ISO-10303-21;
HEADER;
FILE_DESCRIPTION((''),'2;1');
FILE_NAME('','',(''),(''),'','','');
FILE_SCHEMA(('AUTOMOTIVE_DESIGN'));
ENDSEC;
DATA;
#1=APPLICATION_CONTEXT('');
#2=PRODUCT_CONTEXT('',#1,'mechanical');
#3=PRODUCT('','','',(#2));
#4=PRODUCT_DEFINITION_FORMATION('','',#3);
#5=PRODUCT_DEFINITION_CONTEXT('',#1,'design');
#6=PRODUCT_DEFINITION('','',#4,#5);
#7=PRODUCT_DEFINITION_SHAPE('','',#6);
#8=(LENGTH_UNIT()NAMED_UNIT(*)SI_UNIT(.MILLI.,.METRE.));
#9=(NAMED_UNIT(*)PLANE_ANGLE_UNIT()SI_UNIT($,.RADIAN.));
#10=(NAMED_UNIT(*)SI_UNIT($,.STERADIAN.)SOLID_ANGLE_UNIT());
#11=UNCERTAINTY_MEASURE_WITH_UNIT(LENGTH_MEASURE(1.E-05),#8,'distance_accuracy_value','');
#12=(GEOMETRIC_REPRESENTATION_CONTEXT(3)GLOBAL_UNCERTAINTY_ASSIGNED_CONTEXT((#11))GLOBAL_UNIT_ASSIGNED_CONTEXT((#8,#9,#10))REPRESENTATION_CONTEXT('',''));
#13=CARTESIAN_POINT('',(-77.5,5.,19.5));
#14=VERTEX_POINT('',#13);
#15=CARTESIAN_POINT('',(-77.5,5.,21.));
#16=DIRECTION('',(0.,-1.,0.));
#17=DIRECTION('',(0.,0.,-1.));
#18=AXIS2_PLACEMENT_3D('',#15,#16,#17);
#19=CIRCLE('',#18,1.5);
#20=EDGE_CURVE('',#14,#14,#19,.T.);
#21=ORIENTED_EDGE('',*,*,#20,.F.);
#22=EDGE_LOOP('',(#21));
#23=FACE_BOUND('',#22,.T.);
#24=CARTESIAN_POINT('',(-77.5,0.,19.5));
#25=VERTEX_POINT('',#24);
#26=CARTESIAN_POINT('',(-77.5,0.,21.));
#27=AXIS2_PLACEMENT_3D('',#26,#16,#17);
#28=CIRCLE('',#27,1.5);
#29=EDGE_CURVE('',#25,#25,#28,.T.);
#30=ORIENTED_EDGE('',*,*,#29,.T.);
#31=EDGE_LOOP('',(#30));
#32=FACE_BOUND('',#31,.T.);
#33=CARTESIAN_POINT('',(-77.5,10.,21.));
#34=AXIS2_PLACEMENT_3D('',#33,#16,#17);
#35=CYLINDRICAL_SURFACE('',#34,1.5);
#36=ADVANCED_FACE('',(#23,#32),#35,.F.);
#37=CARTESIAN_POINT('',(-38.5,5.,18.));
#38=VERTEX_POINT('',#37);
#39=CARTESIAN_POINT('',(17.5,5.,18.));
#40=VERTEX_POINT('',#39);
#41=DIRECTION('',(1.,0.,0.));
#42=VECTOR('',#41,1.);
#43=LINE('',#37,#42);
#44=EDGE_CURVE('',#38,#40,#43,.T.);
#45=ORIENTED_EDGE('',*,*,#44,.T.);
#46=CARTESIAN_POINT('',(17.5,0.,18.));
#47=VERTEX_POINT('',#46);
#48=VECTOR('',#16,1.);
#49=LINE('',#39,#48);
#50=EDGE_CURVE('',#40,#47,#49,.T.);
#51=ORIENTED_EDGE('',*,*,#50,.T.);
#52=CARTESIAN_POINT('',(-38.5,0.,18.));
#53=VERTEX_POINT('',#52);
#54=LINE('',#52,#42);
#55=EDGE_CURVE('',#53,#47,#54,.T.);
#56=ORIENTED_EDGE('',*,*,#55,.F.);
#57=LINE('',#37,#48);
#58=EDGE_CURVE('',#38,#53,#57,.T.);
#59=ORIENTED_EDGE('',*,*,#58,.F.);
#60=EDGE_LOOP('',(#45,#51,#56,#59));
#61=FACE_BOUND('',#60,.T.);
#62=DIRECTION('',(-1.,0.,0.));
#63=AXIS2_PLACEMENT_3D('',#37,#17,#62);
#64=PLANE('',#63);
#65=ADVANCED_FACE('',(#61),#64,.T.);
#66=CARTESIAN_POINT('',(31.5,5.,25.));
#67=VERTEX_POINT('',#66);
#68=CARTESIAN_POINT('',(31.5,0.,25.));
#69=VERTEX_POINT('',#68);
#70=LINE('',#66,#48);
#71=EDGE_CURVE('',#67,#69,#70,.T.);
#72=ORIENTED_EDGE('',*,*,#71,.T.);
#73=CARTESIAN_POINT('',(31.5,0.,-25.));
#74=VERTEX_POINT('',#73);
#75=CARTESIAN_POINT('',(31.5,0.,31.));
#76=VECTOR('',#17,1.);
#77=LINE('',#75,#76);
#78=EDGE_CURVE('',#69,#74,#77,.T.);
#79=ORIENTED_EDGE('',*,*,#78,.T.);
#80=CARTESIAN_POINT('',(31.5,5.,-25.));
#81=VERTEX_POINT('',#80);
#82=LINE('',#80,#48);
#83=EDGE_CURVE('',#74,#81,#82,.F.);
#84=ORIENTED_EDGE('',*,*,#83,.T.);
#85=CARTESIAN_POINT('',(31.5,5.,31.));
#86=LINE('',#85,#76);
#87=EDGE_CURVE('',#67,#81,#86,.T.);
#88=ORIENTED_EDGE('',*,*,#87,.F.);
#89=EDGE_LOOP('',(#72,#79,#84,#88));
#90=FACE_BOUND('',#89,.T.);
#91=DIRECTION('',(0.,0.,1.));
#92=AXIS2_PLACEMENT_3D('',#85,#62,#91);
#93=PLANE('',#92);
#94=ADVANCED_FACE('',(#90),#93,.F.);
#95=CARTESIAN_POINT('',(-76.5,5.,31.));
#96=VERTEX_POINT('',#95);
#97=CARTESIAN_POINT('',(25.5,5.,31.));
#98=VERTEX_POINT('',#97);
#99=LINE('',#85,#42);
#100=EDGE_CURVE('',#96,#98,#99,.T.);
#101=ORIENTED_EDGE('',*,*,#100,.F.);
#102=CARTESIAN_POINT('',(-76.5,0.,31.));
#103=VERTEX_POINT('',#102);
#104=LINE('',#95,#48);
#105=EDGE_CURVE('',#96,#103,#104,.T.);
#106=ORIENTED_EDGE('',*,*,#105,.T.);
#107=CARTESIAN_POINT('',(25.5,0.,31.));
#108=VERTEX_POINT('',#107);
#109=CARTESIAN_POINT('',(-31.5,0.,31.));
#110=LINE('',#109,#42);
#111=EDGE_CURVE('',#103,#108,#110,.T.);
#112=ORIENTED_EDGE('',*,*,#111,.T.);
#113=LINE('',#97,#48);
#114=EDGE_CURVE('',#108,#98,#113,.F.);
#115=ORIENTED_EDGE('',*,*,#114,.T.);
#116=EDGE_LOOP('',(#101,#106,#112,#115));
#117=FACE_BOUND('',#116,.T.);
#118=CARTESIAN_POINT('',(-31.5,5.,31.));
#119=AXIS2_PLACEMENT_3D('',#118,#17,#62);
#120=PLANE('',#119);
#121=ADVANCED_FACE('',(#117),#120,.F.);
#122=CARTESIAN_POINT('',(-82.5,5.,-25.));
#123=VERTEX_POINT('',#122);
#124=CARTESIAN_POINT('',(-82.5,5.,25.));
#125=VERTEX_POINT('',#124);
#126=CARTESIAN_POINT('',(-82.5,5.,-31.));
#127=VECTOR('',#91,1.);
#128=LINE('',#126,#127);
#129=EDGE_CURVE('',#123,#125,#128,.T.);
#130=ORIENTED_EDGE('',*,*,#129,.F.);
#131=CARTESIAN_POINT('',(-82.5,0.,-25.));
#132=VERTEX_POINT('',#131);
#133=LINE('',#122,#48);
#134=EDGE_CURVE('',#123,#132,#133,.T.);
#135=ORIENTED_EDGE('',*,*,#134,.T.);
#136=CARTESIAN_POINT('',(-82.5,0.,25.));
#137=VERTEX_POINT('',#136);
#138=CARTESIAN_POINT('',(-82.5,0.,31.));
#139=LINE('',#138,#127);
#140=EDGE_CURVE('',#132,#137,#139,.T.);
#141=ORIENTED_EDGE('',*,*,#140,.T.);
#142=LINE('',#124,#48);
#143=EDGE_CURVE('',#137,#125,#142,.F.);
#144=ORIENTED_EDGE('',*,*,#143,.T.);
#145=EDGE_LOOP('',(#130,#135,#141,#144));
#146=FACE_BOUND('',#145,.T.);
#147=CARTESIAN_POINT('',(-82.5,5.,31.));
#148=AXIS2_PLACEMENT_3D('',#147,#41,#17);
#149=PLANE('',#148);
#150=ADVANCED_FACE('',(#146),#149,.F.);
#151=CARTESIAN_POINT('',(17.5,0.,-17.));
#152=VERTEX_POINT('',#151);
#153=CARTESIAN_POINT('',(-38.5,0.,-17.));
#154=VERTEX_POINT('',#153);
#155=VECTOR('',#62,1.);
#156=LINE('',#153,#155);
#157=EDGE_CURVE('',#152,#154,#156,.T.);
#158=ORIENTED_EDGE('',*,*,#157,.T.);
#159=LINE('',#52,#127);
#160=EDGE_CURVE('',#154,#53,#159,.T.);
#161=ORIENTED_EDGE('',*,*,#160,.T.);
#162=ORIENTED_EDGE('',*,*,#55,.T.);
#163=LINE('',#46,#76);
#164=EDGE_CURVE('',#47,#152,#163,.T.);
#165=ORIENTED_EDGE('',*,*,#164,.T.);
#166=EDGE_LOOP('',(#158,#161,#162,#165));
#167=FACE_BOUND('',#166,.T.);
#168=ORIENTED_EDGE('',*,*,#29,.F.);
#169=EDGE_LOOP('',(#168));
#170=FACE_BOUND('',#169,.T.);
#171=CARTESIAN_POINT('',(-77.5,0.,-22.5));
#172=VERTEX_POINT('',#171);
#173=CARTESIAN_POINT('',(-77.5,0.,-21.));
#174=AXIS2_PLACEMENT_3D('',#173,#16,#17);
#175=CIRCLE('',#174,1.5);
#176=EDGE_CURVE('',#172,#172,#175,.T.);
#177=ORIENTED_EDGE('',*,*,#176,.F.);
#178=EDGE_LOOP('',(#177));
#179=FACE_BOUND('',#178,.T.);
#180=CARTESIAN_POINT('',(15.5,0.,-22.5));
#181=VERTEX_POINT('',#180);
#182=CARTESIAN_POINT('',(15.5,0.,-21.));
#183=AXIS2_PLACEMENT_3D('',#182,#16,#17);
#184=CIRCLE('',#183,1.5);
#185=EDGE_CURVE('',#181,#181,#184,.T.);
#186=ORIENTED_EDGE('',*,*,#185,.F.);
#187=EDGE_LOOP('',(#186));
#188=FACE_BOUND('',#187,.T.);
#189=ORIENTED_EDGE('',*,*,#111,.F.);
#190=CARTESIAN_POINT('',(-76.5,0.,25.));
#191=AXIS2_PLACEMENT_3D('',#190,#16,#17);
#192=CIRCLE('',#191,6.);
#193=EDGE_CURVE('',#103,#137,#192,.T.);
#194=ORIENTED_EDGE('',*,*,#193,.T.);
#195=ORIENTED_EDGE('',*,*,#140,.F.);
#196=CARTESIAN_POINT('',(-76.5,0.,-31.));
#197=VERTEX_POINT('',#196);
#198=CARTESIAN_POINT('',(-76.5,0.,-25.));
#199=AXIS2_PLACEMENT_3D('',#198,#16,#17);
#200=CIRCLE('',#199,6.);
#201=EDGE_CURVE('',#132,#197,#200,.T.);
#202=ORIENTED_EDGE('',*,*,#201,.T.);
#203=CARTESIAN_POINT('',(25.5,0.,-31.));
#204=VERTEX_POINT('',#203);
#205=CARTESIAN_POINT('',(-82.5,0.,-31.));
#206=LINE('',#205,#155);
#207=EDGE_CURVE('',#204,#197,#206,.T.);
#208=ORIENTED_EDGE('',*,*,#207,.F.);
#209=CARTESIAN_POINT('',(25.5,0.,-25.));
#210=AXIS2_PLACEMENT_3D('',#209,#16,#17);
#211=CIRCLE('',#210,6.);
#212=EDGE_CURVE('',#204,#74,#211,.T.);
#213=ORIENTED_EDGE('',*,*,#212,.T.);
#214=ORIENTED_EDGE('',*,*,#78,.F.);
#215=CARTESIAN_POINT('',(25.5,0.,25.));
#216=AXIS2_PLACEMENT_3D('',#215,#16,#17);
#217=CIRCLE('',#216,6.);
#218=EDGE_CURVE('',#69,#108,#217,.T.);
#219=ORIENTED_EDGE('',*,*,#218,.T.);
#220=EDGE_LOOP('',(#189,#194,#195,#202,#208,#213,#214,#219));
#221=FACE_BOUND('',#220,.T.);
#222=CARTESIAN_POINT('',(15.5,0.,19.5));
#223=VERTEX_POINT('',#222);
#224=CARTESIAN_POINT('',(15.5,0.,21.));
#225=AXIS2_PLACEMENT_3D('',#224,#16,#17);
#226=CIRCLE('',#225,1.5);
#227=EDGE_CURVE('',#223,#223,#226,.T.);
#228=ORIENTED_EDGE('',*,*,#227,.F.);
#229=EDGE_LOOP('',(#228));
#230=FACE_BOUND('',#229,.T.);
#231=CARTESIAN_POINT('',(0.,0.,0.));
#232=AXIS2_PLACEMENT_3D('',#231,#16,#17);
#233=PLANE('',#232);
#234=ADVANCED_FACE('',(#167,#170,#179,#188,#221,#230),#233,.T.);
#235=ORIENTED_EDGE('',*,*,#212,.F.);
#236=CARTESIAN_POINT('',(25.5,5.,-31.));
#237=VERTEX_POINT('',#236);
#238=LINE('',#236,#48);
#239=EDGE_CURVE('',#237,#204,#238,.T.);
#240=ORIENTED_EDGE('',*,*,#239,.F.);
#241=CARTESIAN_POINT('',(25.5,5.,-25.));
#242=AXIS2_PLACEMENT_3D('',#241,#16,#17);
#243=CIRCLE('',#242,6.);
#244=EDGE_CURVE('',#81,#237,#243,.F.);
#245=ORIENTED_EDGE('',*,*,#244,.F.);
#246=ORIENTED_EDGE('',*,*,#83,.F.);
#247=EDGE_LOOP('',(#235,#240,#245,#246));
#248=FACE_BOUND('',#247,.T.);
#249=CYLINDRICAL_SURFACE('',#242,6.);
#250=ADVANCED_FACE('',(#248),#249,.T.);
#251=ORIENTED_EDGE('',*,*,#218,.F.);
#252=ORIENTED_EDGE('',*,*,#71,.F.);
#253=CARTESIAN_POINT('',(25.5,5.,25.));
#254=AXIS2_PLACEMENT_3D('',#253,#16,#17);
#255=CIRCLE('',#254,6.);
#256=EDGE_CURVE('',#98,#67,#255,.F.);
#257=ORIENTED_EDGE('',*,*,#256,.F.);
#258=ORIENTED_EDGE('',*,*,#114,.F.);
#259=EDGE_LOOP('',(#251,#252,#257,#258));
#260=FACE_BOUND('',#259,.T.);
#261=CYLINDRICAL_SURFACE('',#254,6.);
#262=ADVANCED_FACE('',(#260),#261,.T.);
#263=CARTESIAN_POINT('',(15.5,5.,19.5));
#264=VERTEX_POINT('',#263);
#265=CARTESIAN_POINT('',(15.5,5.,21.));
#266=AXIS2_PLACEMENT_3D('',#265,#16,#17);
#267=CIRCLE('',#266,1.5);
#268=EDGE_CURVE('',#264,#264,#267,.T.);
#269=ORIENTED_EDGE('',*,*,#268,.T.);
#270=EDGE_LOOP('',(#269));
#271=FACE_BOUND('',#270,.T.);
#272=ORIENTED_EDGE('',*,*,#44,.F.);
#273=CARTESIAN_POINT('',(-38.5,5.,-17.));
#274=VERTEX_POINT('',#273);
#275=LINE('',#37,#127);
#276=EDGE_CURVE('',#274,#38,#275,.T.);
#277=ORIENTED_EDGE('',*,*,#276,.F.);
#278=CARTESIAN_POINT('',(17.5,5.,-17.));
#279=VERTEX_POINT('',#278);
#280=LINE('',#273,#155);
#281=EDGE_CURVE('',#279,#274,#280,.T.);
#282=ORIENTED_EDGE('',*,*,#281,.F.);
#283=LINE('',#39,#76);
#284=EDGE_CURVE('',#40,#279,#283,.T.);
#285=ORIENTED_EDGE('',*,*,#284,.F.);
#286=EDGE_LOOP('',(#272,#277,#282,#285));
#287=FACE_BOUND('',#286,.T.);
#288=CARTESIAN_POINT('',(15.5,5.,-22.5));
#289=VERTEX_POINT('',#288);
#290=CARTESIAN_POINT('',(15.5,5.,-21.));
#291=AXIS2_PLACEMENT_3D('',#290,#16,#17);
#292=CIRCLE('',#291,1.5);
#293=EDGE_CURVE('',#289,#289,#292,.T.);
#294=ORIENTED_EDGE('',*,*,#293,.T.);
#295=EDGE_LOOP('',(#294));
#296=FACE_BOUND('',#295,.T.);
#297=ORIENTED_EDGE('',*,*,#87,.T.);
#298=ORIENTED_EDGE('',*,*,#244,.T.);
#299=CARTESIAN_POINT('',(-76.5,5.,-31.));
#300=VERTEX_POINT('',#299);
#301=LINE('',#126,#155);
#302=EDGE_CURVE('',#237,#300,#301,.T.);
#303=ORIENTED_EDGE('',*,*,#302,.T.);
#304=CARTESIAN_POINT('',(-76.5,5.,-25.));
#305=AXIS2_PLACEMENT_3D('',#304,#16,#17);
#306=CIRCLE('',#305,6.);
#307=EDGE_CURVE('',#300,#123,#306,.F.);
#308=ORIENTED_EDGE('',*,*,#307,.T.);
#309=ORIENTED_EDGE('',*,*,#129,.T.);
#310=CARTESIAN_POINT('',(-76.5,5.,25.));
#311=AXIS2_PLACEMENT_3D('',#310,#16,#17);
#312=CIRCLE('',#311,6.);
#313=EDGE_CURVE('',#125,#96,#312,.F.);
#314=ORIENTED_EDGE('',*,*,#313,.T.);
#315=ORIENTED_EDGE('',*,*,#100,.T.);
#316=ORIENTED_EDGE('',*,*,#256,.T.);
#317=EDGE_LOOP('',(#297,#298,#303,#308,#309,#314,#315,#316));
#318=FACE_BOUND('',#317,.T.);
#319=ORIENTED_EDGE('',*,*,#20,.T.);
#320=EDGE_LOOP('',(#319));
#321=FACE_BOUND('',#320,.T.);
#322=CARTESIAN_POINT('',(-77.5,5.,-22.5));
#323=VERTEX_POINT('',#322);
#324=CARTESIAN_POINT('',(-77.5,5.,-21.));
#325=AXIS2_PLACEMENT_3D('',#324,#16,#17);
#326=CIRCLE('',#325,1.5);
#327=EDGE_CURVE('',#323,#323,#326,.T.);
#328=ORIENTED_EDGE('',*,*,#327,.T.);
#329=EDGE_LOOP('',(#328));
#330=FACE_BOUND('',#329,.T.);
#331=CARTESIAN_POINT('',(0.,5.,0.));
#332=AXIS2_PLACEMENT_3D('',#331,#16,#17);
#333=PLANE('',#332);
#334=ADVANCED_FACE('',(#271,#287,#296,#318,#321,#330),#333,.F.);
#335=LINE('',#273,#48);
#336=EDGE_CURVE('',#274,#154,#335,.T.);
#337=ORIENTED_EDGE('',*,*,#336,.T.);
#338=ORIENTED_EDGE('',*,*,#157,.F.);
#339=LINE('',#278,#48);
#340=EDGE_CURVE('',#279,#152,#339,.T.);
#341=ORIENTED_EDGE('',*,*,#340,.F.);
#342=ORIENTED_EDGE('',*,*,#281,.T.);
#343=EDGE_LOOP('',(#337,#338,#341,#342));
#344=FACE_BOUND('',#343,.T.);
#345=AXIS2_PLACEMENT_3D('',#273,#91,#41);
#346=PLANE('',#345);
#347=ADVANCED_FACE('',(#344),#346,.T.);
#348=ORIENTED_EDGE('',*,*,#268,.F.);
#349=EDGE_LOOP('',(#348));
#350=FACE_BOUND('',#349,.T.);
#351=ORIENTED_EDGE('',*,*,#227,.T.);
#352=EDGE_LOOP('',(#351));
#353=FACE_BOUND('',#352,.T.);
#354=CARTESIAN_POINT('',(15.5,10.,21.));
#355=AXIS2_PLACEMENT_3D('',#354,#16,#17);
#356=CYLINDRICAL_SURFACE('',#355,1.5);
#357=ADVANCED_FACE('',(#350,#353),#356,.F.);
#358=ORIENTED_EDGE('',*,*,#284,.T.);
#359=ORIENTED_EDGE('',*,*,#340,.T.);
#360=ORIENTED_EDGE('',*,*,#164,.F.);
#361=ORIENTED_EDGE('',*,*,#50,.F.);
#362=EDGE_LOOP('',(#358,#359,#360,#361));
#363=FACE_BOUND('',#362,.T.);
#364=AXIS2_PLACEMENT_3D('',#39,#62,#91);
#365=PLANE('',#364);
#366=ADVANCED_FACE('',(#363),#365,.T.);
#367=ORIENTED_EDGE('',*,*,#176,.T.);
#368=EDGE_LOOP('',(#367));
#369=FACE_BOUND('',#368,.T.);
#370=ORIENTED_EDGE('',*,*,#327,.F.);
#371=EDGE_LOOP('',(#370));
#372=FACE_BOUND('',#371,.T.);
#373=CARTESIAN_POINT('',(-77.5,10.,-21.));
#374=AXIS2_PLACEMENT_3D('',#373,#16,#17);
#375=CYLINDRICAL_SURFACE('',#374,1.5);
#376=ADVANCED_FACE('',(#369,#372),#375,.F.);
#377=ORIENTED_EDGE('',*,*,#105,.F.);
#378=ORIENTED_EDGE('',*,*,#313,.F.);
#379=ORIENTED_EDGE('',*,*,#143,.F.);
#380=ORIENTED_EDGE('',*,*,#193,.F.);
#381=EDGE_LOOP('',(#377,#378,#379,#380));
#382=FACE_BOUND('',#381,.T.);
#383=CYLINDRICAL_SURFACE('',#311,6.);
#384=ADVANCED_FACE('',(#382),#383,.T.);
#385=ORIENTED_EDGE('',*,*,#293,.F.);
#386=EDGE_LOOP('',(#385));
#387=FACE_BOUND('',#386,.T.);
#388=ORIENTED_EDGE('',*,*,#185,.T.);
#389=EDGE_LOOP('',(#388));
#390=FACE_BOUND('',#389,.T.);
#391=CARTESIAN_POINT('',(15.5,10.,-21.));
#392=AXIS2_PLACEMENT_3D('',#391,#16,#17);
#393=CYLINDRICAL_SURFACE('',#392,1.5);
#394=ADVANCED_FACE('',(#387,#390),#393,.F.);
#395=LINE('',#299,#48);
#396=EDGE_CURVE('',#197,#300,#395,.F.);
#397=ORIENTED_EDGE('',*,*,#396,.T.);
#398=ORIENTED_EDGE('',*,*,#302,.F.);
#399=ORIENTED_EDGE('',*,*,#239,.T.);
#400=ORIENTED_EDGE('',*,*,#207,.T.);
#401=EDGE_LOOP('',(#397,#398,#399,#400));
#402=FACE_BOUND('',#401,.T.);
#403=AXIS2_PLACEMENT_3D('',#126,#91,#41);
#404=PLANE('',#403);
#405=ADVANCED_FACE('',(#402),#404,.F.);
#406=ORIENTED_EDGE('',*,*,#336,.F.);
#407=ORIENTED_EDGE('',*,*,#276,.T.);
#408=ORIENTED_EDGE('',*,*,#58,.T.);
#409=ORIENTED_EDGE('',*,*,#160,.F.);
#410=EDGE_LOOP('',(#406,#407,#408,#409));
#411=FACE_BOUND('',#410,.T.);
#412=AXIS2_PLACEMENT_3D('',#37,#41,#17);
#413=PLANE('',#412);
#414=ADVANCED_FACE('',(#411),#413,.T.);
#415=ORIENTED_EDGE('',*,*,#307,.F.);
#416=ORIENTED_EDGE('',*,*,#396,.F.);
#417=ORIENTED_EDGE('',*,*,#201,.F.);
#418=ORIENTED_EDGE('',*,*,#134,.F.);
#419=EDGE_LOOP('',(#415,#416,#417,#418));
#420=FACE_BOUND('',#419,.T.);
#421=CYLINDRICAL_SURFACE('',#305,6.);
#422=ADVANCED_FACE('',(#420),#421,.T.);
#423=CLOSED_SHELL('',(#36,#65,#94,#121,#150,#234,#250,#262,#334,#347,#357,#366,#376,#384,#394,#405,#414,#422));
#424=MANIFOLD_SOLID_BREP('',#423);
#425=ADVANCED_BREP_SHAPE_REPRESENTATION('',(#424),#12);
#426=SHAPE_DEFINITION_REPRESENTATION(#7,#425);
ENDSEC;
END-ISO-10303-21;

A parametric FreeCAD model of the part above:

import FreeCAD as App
import Part
import Sketcher

V = App.Vector


def edges_at(feature, points):
    """Names of the edges that pass closest to the given points."""
    edges = feature.Shape.Edges
    near = lambda p: min(range(len(edges)), key=lambda i: edges[i].distToShape(Part.Vertex(*p))[0])
    return sorted({f"Edge{near(p) + 1}" for p in points})


def add_polygon(sketch, points):
    """Adds a closed chain of lines whose ends are joined by coincident constraints."""
    first, n = sketch.GeometryCount, len(points)
    for a, b in zip(points, points[1:] + points[:1]):
        sketch.addGeometry(Part.LineSegment(App.Vector(*a, 0), App.Vector(*b, 0)), False)
    for i in range(n):
        sketch.addConstraint(Sketcher.Constraint("Coincident", first + i, 2, first + (i + 1) % n, 1))

doc = App.newDocument("Part")
body = doc.addObject("PartDesign::Body", "Body")

sketch1 = body.newObject("Sketcher::SketchObject", "Sketch")
sketch1.AttachmentSupport = (doc.getObject("XZ_Plane"), [""])
sketch1.MapMode = "FlatFace"
add_polygon(sketch1, [(-82.5, 31), (31.5, 31), (31.5, -31), (-82.5, -31)])
add_polygon(sketch1, [(-38.5, 18), (-38.5, -17), (17.5, -17), (17.5, 18)])
sketch1.addConstraint([
    Sketcher.Constraint("Horizontal", 0),
    Sketcher.Constraint("Vertical", 1),
    Sketcher.Constraint("Horizontal", 2),
    Sketcher.Constraint("Vertical", 3),
    Sketcher.Constraint("Vertical", 4),
    Sketcher.Constraint("Horizontal", 5),
    Sketcher.Constraint("Vertical", 6),
    Sketcher.Constraint("Horizontal", 7),
    Sketcher.Constraint("DistanceX", 0, 1, 0, 2, 114.0),
    Sketcher.Constraint("DistanceX", 5, 1, 5, 2, 56.0),
    Sketcher.Constraint("DistanceY", 1, 2, 1, 1, 62.0),
    Sketcher.Constraint("DistanceY", 4, 2, 4, 1, 35.0),
    Sketcher.Constraint("DistanceY", -1, 1, 0, 2, 31.0),
    Sketcher.Constraint("DistanceY", 4, 2, -1, 1, 17.0),
    Sketcher.Constraint("DistanceX", 2, 2, 4, 2, 44.0),
    Sketcher.Constraint("DistanceX", -1, 1, 0, 2, 31.5),
])
pad1 = body.newObject("PartDesign::Pad", "Pad")
pad1.Profile = sketch1
pad1.Length = 5
pad1.Reversed = True

sketch2 = body.newObject("Sketcher::SketchObject", "Sketch001")
sketch2.AttachmentSupport = (doc.getObject("XZ_Plane"), [""])
sketch2.MapMode = "FlatFace"
sketch2.addGeometry([
    Part.Circle(V(15.5, 21, 0), V(0, 0, 1), 1.5),
    Part.Circle(V(15.5, -21, 0), V(0, 0, 1), 1.5),
    Part.Circle(V(-77.5, 21, 0), V(0, 0, 1), 1.5),
    Part.Circle(V(-77.5, -21, 0), V(0, 0, 1), 1.5),
], False)
sketch2.addConstraint([
    Sketcher.Constraint("Equal", 0, 1),
    Sketcher.Constraint("Equal", 1, 2),
    Sketcher.Constraint("Equal", 2, 3),
    Sketcher.Constraint("Symmetric", 0, 3, 1, 3, -1),
    Sketcher.Constraint("Symmetric", 2, 3, 3, 3, -1),
    Sketcher.Constraint("Horizontal", 0, 3, 2, 3),
    Sketcher.Constraint("Diameter", 0, 3.0),
    Sketcher.Constraint("DistanceY", -1, 1, 0, 3, 21.0),
    Sketcher.Constraint("DistanceX", 2, 3, 0, 3, 93.0),
    Sketcher.Constraint("DistanceX", -1, 1, 0, 3, 15.5),
])
pocket1 = body.newObject("PartDesign::Pocket", "Pocket")
pocket1.Profile = sketch2
pocket1.Length = 10
doc.recompute()

fillet = body.newObject("PartDesign::Fillet", "Fillet")
fillet.Base = (pocket1, edges_at(pocket1, [
    (-82.5, 2.5, 31),
    (-82.5, 2.5, -31),
    (31.5, 2.5, -31),
    (31.5, 2.5, 31),
]))
fillet.Radius = 6

doc.recompute()
